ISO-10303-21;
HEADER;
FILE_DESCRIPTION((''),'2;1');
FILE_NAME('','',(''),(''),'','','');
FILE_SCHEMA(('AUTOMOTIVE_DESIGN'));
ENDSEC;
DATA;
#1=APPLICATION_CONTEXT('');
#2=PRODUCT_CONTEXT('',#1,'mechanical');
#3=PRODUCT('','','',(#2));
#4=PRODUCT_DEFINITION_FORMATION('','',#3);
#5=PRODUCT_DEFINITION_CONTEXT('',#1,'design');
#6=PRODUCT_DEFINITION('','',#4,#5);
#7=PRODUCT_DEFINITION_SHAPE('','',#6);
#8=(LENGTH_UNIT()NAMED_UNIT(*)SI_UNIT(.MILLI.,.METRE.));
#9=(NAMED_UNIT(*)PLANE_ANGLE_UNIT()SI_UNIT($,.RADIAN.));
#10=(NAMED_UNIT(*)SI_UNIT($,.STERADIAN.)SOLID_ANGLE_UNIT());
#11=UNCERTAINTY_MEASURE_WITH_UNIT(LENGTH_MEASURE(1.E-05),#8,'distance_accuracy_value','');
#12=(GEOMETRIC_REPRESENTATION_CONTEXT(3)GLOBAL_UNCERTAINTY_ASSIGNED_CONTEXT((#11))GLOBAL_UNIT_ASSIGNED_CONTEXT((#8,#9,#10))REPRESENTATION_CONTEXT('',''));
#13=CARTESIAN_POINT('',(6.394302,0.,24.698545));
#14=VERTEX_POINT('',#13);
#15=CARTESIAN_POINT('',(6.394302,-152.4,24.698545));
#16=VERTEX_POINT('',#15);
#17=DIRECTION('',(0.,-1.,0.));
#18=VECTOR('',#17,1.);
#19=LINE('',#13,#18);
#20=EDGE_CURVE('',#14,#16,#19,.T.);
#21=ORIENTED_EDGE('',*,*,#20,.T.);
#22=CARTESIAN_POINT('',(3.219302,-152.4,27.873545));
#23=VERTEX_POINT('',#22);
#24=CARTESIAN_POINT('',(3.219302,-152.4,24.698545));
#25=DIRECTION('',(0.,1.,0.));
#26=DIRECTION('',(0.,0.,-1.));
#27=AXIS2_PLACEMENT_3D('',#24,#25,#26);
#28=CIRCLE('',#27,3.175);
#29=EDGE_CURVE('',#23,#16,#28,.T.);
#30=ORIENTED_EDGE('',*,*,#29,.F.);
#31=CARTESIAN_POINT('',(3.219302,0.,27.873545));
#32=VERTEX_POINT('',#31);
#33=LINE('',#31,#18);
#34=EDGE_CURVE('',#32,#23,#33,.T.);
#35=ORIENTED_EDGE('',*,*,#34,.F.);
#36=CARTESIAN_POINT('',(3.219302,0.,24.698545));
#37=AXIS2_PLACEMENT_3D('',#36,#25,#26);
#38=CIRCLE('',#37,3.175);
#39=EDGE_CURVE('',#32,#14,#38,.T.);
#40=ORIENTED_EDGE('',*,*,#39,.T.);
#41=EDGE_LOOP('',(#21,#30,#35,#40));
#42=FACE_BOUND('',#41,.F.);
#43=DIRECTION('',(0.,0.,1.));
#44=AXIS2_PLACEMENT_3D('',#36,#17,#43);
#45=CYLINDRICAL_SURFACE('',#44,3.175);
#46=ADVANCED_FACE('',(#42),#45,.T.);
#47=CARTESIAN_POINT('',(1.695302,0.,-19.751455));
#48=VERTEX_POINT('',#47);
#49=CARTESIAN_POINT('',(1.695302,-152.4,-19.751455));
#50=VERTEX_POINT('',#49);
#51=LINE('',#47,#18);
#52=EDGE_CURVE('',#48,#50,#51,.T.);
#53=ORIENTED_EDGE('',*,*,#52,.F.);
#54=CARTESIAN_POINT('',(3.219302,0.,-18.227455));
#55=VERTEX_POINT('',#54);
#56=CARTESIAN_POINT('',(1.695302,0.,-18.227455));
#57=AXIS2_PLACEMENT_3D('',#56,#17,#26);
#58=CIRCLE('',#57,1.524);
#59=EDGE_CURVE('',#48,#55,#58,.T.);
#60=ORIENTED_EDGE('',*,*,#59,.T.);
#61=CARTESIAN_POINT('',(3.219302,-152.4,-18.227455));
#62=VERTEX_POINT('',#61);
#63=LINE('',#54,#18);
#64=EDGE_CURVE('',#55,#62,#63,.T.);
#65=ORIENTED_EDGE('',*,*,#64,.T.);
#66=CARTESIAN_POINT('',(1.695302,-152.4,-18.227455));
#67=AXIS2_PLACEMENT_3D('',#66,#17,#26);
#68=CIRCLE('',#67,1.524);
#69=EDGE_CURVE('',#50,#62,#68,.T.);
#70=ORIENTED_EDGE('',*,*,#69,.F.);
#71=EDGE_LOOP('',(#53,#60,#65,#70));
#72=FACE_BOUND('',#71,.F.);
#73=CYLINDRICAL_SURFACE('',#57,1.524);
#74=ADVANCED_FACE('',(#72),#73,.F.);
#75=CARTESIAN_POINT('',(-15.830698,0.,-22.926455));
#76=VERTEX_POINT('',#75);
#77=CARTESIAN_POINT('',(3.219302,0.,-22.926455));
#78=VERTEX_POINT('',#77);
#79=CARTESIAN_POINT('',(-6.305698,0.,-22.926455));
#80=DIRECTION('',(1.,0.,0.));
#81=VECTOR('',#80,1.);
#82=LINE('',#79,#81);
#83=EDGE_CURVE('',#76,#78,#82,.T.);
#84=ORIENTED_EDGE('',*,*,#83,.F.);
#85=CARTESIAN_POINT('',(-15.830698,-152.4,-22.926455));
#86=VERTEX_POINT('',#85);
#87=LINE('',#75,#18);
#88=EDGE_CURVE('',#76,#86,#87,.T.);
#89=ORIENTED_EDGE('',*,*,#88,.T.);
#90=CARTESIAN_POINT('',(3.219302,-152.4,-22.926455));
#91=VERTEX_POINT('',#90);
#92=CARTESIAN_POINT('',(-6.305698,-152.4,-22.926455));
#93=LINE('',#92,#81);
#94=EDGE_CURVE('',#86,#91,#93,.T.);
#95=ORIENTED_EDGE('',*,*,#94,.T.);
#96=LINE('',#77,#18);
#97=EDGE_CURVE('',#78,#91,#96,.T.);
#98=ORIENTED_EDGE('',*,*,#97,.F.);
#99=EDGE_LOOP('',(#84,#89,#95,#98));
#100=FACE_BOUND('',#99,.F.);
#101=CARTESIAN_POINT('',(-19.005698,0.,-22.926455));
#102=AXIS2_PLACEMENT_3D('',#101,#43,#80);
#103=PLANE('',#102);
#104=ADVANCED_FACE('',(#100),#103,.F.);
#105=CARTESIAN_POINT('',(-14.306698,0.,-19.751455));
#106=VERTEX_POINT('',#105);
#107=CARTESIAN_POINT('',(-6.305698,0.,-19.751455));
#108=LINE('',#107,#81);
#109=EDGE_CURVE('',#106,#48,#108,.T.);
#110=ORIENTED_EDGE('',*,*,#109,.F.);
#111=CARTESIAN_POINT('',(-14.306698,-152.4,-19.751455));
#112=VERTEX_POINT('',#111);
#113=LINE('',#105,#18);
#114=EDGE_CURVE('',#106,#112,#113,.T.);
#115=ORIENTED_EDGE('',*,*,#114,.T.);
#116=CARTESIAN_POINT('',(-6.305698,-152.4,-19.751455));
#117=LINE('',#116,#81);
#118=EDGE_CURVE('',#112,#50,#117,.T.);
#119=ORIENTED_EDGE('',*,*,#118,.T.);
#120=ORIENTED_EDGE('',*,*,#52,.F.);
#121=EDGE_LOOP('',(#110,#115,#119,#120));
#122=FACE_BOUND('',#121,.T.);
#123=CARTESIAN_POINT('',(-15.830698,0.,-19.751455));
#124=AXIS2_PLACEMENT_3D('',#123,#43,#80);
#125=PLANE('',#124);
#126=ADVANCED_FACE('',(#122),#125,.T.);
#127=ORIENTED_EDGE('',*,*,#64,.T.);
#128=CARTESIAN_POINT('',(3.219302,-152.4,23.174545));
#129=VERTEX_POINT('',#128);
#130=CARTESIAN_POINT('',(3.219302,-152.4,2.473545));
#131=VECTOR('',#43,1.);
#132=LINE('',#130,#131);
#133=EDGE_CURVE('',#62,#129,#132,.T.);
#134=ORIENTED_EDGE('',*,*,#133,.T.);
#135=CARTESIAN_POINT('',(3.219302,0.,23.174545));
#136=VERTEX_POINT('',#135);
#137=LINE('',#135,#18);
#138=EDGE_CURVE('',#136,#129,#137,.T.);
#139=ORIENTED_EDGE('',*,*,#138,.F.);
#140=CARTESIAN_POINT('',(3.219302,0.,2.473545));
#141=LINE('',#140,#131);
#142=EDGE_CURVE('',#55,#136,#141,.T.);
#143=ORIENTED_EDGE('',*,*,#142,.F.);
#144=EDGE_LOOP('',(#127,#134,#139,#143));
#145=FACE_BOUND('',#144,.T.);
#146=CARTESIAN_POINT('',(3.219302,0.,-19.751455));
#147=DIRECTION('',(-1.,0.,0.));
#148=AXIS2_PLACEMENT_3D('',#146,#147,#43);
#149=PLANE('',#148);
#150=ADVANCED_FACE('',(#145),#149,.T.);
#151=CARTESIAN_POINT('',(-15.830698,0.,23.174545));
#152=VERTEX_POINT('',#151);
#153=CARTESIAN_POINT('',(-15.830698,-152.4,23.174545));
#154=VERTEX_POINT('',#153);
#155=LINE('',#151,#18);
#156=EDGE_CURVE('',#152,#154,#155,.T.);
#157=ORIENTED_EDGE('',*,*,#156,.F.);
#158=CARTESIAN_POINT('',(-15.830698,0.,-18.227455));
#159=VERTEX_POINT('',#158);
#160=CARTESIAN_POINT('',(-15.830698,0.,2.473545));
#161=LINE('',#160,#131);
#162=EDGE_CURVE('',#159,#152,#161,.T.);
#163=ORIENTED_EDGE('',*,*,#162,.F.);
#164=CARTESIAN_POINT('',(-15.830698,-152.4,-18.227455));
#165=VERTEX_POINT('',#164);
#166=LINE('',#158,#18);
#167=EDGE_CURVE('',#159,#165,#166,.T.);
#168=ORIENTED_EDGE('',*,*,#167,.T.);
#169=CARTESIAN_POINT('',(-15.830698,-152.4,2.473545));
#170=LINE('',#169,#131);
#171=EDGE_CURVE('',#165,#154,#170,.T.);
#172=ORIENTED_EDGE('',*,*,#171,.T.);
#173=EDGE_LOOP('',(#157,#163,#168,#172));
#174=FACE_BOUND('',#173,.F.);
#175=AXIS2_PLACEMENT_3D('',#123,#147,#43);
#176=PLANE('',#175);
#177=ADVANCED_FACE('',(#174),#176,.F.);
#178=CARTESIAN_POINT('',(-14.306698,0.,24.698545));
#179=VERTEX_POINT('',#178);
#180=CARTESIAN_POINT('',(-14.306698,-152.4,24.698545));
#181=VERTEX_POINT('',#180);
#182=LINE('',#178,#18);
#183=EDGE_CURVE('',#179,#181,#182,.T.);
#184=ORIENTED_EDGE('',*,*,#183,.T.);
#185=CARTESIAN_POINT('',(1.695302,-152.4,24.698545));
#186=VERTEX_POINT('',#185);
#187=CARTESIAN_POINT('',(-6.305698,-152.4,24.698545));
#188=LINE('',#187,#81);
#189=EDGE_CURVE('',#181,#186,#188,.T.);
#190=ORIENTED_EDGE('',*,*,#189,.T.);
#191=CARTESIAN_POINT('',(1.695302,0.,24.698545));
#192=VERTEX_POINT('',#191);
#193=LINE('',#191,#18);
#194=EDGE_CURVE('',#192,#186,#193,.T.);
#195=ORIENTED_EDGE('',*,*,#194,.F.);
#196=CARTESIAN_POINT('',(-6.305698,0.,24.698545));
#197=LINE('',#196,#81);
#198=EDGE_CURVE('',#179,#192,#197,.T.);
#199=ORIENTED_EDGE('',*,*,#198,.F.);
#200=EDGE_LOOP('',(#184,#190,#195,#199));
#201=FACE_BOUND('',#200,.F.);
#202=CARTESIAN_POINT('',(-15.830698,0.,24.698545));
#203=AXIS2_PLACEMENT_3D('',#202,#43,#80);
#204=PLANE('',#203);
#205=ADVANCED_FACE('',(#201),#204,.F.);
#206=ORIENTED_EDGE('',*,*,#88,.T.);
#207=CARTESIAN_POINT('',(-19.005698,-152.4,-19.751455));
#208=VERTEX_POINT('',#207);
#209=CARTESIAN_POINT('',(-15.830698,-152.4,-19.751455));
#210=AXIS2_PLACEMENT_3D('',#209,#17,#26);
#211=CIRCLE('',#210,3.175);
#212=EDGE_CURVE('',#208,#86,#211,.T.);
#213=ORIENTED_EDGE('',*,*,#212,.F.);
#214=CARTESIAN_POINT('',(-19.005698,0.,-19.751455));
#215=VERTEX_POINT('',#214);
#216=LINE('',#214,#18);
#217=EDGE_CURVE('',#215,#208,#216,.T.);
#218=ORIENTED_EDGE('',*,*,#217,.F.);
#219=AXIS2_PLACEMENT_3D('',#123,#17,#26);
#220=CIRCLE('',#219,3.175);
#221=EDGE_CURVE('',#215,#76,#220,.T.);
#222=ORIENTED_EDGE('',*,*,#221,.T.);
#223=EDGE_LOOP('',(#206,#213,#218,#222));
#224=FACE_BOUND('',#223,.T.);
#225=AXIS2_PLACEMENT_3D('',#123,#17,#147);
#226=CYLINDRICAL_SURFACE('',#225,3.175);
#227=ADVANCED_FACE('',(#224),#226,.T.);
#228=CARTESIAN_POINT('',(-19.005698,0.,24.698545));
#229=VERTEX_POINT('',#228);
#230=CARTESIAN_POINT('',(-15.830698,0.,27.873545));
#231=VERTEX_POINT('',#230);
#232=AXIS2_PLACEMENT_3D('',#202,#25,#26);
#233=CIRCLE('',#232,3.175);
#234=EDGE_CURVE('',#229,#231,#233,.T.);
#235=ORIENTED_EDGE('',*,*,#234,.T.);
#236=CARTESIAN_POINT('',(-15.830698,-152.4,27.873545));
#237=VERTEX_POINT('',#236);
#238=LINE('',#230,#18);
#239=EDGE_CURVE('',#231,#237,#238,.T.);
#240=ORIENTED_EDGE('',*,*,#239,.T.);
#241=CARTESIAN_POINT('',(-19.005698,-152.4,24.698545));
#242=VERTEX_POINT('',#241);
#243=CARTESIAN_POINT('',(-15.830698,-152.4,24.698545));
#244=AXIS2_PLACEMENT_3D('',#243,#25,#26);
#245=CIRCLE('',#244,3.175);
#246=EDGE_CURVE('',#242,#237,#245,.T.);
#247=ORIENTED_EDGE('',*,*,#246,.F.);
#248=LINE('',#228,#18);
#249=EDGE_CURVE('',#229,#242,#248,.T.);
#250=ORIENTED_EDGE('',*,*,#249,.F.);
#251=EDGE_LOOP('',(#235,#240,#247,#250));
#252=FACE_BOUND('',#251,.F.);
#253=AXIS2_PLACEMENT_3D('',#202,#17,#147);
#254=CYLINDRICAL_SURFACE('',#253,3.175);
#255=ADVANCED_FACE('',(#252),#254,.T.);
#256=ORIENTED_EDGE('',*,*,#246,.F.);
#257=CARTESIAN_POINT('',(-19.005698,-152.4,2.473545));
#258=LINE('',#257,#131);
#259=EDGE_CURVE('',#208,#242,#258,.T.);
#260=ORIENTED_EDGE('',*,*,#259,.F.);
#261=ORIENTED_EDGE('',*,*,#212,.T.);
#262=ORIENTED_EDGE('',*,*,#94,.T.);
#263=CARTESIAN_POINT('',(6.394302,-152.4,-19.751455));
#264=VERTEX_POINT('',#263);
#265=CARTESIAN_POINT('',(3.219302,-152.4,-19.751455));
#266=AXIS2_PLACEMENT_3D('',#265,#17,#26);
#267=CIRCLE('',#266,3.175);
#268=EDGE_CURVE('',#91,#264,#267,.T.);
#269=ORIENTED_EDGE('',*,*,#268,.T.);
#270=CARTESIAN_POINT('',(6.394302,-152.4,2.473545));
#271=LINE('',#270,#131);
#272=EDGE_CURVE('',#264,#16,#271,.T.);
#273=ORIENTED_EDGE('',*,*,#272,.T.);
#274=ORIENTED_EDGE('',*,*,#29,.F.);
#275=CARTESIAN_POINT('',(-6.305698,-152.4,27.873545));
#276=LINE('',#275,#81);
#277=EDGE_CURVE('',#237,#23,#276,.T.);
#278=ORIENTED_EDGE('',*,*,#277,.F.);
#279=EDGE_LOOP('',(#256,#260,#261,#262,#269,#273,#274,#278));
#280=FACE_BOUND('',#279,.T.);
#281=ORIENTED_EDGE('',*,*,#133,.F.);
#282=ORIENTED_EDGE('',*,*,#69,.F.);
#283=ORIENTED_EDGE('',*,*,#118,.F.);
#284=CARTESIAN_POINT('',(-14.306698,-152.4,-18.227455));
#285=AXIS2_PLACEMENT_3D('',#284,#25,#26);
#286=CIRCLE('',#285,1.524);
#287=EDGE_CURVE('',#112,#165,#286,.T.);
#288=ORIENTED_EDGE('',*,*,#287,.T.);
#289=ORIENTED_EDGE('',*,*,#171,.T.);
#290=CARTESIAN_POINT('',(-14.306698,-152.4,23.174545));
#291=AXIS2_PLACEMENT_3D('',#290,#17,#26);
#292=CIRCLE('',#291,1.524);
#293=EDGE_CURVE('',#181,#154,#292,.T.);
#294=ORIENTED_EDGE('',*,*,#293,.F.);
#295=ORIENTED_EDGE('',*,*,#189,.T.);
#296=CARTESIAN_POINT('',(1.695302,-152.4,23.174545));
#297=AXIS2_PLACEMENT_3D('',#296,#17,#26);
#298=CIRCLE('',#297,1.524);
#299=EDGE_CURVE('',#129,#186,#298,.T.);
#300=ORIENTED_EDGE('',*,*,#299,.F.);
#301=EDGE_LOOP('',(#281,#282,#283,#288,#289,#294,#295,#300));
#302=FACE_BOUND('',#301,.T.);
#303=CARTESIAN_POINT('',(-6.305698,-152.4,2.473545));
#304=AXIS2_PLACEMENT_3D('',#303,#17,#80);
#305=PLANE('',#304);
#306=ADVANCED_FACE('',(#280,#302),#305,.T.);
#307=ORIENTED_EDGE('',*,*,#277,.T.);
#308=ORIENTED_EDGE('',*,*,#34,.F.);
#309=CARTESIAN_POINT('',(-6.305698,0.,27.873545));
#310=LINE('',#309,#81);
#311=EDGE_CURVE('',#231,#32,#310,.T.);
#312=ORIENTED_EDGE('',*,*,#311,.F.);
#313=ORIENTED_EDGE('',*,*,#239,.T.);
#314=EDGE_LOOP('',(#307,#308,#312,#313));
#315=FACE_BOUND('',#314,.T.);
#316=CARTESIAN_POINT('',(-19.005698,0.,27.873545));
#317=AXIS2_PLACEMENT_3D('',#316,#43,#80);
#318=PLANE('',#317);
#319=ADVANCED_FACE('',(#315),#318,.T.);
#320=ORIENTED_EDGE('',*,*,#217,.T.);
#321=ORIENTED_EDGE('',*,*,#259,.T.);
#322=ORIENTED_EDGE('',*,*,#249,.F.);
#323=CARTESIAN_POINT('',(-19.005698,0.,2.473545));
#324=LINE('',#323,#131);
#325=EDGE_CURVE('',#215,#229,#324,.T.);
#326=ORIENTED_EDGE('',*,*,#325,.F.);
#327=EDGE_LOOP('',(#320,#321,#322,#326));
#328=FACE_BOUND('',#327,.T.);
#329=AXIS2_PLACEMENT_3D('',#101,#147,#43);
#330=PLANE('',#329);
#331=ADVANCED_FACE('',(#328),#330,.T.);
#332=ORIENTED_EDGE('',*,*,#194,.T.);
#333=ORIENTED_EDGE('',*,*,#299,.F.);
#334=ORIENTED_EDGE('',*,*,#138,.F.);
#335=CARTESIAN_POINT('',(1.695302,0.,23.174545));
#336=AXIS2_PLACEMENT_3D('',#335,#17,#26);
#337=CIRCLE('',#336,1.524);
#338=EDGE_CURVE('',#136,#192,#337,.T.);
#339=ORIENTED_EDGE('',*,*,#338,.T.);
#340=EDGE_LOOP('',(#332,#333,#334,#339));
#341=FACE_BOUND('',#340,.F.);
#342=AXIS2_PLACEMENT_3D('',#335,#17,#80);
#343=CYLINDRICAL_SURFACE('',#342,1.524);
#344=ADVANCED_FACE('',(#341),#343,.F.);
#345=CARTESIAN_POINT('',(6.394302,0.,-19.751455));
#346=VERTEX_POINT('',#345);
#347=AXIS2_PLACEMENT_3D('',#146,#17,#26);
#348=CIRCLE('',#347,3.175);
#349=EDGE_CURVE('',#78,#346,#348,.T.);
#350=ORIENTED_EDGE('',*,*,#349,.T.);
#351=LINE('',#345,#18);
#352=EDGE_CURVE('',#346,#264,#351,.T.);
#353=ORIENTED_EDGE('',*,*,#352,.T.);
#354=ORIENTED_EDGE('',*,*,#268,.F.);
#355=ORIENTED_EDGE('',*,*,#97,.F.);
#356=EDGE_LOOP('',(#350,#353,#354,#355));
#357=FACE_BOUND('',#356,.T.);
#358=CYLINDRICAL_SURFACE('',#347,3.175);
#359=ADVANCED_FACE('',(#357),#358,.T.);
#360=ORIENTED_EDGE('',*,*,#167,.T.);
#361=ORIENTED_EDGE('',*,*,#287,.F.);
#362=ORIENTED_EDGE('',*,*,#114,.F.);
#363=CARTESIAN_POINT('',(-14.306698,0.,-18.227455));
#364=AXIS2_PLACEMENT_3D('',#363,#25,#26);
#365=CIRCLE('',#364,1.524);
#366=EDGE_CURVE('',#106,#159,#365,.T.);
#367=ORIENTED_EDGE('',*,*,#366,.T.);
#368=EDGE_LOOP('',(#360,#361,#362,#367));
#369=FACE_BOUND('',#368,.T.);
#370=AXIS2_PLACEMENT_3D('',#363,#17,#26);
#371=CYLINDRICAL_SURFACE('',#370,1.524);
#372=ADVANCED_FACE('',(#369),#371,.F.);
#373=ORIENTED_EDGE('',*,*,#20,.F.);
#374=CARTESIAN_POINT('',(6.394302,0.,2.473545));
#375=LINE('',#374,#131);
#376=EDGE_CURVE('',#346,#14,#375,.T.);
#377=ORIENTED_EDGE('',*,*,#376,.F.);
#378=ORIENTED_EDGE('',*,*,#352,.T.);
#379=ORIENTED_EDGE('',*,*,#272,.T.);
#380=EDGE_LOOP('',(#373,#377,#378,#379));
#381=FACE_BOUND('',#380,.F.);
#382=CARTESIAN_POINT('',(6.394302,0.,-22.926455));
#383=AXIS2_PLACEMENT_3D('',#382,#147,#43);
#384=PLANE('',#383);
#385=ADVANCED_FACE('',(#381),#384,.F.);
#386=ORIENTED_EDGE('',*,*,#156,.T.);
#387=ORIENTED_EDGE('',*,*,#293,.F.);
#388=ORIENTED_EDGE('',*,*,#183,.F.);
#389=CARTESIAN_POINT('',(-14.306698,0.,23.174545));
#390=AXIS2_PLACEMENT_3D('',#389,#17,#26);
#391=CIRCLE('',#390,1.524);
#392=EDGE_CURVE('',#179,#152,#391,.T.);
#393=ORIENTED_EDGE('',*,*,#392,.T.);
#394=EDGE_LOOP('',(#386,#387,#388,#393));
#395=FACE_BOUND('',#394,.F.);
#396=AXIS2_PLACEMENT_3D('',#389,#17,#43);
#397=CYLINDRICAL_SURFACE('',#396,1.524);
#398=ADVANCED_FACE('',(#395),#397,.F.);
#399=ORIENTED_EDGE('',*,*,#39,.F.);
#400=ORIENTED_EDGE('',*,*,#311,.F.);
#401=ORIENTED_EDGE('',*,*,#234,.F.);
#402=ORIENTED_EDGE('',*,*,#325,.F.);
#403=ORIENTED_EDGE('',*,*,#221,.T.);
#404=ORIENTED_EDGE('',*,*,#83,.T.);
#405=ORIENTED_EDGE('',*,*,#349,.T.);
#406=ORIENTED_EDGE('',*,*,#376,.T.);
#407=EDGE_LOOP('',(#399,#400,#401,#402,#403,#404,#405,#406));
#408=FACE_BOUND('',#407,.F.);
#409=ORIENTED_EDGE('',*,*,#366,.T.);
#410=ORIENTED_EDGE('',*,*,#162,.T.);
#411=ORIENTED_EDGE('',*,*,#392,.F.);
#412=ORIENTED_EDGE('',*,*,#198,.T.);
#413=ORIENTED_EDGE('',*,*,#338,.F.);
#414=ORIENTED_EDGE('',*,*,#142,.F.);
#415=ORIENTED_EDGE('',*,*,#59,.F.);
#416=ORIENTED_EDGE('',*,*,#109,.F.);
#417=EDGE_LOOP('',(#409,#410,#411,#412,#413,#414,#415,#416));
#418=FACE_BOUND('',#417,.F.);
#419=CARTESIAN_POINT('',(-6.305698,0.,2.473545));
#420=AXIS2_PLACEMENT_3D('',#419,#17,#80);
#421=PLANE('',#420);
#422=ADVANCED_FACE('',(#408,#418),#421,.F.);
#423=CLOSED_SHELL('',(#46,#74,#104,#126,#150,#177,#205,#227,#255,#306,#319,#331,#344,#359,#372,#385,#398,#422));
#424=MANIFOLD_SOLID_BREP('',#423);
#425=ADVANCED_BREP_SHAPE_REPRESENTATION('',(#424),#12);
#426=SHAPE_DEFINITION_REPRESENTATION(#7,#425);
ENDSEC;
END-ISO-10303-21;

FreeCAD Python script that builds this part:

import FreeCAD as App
import Part
import Sketcher

V = App.Vector
Q = App.Units.Quantity


def edges_at(feature, points):
    """Names of the edges that pass closest to the given points."""
    edges = feature.Shape.Edges
    near = lambda p: min(range(len(edges)), key=lambda i: edges[i].distToShape(Part.Vertex(*p))[0])
    return sorted({f"Edge{near(p) + 1}" for p in points})


def add_polygon(sketch, points):
    """Adds a closed chain of lines whose ends are joined by coincident constraints."""
    first, n = sketch.GeometryCount, len(points)
    for a, b in zip(points, points[1:] + points[:1]):
        sketch.addGeometry(Part.LineSegment(App.Vector(*a, 0), App.Vector(*b, 0)), False)
    for i in range(n):
        sketch.addConstraint(Sketcher.Constraint("Coincident", first + i, 2, first + (i + 1) % n, 1))

doc = App.newDocument("Part")
body = doc.addObject("PartDesign::Body", "Body")

# Sketch on XZ plane
sketch1 = body.newObject("Sketcher::SketchObject", "Sketch")
sketch1.AttachmentSupport = (doc.getObject("XZ_Plane"), [""])
sketch1.MapMode = "FlatFace"
add_polygon(sketch1, [(-19, 28), (-19, -23), (6, -23), (6, 28)])  # lines 0-3
add_polygon(sketch1, [(3, -20), (-16, -20), (-16, 25), (3, 25)])  # lines 4-7
sketch1.addConstraint([
    Sketcher.Constraint("Vertical", 0),
    Sketcher.Constraint("Horizontal", 1),
    Sketcher.Constraint("Vertical", 2),
    Sketcher.Constraint("Horizontal", 3),
    Sketcher.Constraint("Horizontal", 4),
    Sketcher.Constraint("Vertical", 5),
    Sketcher.Constraint("Horizontal", 6),
    Sketcher.Constraint("Vertical", 7),
    Sketcher.Constraint("DistanceX", 1, 1, 1, 2, Q("1 in")),
    Sketcher.Constraint("DistanceY", 0, 2, 0, 1, Q("2 in")),
    Sketcher.Constraint("DistanceX", 4, 2, 4, 1, Q("0.75 in")),
    Sketcher.Constraint("DistanceY", 5, 1, 5, 2, Q("1.75 in")),
    Sketcher.Constraint("DistanceX", 0, 2, 4, 2, Q("0.125 in")),
    Sketcher.Constraint("DistanceY", 0, 2, 4, 2, Q("0.125 in")),
    Sketcher.Constraint("DistanceX", -1, 1, 1, 2, Q("6.394302 mm")),
    Sketcher.Constraint("DistanceY", 0, 2, -1, 1, Q("22.926455 mm")),
])
pad1 = body.newObject("PartDesign::Pad", "Pad")
pad1.Profile = sketch1
pad1.Length = Q("6 in")
doc.recompute()

fillet = body.newObject("PartDesign::Fillet", "Fillet")
fillet.Base = (pad1, edges_at(pad1, [
    (-19.006, -76.2, 27.874),
    (6.394, -76.2, 27.874),
    (-19.006, -76.2, -22.926),
    (6.394, -76.2, -22.926),
]))
fillet.Radius = Q("0.125 in")
doc.recompute()

fillet2 = body.newObject("PartDesign::Fillet", "Fillet001")
fillet2.Base = (fillet, edges_at(fillet, [
    (-15.831, -76.2, 24.699),
    (3.219, -76.2, 24.699),
    (3.219, -76.2, -19.751),
    (-15.831, -76.2, -19.751),
]))
fillet2.Radius = Q("0.06 in")

doc.recompute()
